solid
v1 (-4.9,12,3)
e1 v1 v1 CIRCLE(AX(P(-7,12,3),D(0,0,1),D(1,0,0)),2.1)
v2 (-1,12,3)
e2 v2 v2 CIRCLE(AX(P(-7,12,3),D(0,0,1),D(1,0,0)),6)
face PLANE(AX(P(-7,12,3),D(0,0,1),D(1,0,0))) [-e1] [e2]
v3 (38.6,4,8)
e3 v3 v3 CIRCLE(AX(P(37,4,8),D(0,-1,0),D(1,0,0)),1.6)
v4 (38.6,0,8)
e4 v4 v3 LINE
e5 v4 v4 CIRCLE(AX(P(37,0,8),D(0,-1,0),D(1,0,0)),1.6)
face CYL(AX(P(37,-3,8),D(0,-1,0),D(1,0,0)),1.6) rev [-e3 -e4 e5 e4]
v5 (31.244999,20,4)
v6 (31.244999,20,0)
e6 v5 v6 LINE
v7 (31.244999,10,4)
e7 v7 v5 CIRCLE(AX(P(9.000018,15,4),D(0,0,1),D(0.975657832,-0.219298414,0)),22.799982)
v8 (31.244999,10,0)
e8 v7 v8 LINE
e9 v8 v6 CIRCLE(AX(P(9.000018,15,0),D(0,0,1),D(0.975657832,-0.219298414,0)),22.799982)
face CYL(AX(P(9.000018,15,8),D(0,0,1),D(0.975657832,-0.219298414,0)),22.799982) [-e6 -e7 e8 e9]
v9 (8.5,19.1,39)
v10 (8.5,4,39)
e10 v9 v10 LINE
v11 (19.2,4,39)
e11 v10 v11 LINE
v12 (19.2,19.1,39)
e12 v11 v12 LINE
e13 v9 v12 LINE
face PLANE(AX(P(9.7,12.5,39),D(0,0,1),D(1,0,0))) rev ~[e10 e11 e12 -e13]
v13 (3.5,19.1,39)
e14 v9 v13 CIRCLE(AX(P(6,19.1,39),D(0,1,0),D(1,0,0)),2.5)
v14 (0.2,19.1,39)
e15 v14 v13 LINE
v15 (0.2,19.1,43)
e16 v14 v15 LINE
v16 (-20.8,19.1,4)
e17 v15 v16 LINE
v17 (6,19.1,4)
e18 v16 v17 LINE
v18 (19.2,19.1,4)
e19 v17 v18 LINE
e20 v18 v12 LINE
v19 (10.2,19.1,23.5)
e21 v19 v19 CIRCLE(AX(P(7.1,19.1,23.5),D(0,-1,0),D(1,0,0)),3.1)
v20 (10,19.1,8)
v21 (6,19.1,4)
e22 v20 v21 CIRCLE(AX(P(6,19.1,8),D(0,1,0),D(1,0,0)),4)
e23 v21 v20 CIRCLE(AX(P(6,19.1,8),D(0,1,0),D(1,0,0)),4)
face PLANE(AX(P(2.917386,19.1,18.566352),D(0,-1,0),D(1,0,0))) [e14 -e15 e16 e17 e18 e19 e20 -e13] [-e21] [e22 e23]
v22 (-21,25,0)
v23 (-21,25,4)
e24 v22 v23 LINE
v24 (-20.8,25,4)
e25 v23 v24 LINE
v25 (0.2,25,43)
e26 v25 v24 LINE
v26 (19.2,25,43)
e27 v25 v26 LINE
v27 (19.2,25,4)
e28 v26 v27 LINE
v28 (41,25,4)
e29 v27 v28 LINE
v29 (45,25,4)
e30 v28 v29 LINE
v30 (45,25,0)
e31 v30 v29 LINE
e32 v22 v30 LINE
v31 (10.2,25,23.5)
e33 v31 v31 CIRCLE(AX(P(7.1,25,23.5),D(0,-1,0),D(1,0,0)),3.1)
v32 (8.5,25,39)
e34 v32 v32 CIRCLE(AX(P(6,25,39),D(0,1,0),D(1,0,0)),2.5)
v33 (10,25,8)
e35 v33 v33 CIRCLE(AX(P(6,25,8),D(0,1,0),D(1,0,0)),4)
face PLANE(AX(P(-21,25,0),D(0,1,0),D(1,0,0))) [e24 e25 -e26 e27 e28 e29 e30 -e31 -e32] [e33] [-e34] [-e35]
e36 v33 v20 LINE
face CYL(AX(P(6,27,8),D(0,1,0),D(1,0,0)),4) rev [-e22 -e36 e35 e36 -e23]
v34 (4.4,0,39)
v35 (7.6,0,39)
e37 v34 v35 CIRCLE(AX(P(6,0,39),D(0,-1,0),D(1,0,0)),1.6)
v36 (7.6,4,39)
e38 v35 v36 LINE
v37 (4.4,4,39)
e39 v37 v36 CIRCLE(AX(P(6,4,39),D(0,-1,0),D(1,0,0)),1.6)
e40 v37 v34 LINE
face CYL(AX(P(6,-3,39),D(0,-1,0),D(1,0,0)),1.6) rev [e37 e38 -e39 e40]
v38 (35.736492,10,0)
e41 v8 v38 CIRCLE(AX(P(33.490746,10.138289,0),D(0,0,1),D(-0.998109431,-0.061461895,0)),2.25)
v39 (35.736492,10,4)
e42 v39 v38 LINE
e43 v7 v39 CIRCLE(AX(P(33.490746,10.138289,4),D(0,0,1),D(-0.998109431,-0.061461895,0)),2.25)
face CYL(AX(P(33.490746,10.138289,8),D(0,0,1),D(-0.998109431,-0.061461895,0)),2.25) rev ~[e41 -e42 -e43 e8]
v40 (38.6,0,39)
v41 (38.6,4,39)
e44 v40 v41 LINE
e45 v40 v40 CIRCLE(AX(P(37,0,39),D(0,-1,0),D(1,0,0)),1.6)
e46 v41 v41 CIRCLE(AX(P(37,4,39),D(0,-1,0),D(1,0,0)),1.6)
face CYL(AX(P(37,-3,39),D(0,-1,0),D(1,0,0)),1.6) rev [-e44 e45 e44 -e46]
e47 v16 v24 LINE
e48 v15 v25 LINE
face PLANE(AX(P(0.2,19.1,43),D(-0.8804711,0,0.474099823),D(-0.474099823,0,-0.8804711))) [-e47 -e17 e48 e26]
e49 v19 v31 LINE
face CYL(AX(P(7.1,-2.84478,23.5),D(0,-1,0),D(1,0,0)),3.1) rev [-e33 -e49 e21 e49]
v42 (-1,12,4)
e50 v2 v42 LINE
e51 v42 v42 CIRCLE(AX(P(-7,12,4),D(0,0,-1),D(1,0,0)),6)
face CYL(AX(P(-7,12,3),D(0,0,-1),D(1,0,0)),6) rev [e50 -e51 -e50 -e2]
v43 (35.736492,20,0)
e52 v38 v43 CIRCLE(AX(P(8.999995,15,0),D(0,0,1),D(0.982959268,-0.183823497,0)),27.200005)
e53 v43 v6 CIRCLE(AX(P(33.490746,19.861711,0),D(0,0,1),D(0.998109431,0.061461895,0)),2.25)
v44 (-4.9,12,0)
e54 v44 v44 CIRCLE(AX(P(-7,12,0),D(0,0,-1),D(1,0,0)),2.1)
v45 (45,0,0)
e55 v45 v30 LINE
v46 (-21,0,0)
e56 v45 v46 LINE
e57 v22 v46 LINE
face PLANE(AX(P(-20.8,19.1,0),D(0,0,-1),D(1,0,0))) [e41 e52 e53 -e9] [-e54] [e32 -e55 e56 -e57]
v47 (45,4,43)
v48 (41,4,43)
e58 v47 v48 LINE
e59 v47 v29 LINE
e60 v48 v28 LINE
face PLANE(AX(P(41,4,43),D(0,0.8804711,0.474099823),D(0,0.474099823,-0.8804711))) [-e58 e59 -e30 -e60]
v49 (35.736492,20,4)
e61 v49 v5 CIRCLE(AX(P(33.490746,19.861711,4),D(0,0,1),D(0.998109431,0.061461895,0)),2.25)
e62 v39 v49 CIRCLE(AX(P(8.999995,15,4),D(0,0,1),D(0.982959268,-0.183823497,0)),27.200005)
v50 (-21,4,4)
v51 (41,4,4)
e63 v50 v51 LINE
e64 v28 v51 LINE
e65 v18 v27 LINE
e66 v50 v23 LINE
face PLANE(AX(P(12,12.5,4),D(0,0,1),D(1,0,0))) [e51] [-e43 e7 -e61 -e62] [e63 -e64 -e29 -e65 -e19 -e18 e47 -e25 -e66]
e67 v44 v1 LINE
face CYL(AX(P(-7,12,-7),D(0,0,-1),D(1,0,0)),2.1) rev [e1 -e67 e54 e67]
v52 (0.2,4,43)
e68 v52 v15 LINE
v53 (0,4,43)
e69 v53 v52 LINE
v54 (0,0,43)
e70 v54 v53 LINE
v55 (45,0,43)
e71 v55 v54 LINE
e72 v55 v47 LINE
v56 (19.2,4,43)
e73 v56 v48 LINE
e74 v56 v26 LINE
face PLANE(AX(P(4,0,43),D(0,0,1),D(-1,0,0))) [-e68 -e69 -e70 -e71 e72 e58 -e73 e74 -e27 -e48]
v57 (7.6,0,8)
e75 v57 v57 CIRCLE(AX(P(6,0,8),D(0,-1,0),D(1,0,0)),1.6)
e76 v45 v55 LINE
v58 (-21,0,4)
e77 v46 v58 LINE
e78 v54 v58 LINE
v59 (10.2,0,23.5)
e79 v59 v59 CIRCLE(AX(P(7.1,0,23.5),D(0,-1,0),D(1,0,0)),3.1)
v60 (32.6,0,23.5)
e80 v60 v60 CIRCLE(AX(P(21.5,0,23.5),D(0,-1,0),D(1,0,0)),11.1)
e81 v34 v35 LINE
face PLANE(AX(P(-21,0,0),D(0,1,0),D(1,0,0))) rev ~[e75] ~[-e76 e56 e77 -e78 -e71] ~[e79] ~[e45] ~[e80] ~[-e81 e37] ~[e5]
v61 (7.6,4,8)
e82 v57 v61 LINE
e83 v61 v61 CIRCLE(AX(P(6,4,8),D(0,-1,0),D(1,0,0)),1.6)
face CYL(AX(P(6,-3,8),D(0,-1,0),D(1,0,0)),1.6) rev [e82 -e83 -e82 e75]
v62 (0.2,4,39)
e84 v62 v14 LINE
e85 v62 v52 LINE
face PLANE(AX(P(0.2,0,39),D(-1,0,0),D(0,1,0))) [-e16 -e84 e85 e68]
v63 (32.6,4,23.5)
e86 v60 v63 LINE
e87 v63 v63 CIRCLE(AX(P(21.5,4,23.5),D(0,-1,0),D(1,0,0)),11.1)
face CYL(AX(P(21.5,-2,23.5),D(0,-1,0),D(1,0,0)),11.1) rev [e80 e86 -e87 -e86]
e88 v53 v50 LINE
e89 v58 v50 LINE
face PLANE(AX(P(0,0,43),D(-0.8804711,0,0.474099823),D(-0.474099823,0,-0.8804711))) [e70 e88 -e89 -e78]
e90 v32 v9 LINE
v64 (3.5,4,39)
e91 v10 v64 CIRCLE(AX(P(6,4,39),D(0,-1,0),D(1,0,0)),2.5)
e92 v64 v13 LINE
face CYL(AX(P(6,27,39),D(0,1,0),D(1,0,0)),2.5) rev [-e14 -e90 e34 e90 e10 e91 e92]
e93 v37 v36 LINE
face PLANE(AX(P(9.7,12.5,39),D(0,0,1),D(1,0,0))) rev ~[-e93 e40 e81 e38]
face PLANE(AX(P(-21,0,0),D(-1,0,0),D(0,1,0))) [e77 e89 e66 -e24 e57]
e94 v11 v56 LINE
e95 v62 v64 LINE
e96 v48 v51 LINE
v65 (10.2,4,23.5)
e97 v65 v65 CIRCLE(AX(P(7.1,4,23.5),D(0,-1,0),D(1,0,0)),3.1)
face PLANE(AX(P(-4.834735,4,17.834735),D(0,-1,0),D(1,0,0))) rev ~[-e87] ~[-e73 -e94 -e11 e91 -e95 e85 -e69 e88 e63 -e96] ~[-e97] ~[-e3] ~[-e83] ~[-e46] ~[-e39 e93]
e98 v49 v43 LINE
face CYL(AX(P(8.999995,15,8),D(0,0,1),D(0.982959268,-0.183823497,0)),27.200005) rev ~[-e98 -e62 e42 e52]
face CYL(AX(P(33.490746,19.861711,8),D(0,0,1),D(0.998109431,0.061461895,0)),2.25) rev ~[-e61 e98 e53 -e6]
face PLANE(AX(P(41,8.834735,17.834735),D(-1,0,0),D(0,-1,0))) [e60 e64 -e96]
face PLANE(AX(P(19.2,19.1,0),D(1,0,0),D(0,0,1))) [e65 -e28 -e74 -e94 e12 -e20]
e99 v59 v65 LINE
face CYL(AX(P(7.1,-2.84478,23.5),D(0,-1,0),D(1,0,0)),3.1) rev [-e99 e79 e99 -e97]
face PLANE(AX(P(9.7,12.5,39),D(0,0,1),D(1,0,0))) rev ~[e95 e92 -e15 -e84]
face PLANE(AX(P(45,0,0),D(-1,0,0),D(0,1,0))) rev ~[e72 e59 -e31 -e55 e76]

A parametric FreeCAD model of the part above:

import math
import FreeCAD as App
import Part
import Sketcher


def add_polygon(sketch, points):
    """Adds a closed chain of lines whose ends are joined by coincident constraints."""
    first, n = sketch.GeometryCount, len(points)
    for a, b in zip(points, points[1:] + points[:1]):
        sketch.addGeometry(Part.LineSegment(App.Vector(*a, 0), App.Vector(*b, 0)), False)
    for i in range(n):
        sketch.addConstraint(Sketcher.Constraint("Coincident", first + i, 2, first + (i + 1) % n, 1))

doc = App.newDocument("Part")
body = doc.addObject("PartDesign::Body", "Body")

# Sketch on XZ plane
sketch1 = body.newObject("Sketcher::SketchObject", "Sketch")
sketch1.AttachmentSupport = (doc.getObject("XZ_Plane"), [""])
sketch1.MapMode = "FlatFace"
sketch1.AttachmentOffset = App.Placement(App.Vector(0, 0, 2.84478), App.Rotation())
sketch1.addGeometry(Part.Circle(App.Vector(7.1, 23.5, 0), App.Vector(0, 0, 1), 3.1), False)
sketch1.addConstraint([
    Sketcher.Constraint("Diameter", 0, 6.2),
    Sketcher.Constraint("DistanceX", -1, 1, 0, 3, 7.1),
    Sketcher.Constraint("DistanceY", -1, 1, 0, 3, 23.5),
])
pad1 = body.newObject("PartDesign::Pad", "Pad")
pad1.Profile = sketch1
pad1.Length = 32.5
pad1.Reversed = True
body2 = doc.addObject("PartDesign::Body", "Body001")

# Sketch on XY plane
sketch2 = body2.newObject("Sketcher::SketchObject", "Sketch001")
sketch2.AttachmentSupport = (doc.getObject("XY_Plane001"), [""])
sketch2.MapMode = "FlatFace"
sketch2.addGeometry([
    Part.ArcOfCircle(Part.Circle(App.Vector(9, 15, 0), App.Vector(0, 0, 1), 27.2), math.radians(-11), math.radians(11)),
    Part.ArcOfCircle(Part.Circle(App.Vector(33.5, 19.9, 0), App.Vector(0, 0, 1), 2.3), math.radians(4), math.radians(176)),
    Part.ArcOfCircle(Part.Circle(App.Vector(9, 15, 0), App.Vector(0, 0, 1), 22.8), math.radians(-13), math.radians(13)),
    Part.ArcOfCircle(Part.Circle(App.Vector(33.5, 10.1, 0), App.Vector(0, 0, 1), 2.3), math.radians(-176), math.radians(-4)),
], False)
sketch2.addConstraint([
    Sketcher.Constraint("Coincident", 0, 2, 1, 1),
    Sketcher.Constraint("Coincident", 1, 2, 2, 2),
    Sketcher.Constraint("Coincident", 2, 1, 3, 1),
    Sketcher.Constraint("Coincident", 3, 2, 0, 1),
    Sketcher.Constraint("Equal", 1, 3),
    Sketcher.Constraint("Horizontal", 0, 3, 2, 3),
    Sketcher.Constraint("Horizontal", 0, 2, 1, 2),
    Sketcher.Constraint("Horizontal", 2, 1, 3, 2),
    Sketcher.Constraint("Vertical", 1, 3, 3, 3),
    Sketcher.Constraint("Radius", 1, 2.25),
    Sketcher.Constraint("DistanceY", -1, 1, 0, 3, 15.0),
    Sketcher.Constraint("DistanceY", -1, 1, 0, 2, 20.0),
    Sketcher.Constraint("DistanceX", -1, 1, 1, 2, 31.244999),
    Sketcher.Constraint("Radius", 0, 27.200005),
    Sketcher.Constraint("Radius", 2, 22.799982),
    Sketcher.Constraint("DistanceY", -1, 1, 1, 3, 19.861711),
])
pad2 = body2.newObject("PartDesign::Pad", "Pad001")
pad2.Profile = sketch2
pad2.Length = 10
pad2.Reversed = True
body3 = doc.addObject("PartDesign::Body", "Body002")
doc.recompute()

body2.Placement = App.Placement(App.Vector(0, 0, 8), App.Rotation(App.Vector(0, 0, 1), 0))
boolean = body3.newObject("PartDesign::Boolean", "Boolean")
boolean.Type = "Fuse"
boolean.addObjects([body2])
body4 = doc.addObject("PartDesign::Body", "Body003")

# Sketch on XZ plane
sketch3 = body4.newObject("Sketcher::SketchObject", "Sketch002")
sketch3.AttachmentSupport = (doc.getObject("XZ_Plane003"), [""])
sketch3.MapMode = "FlatFace"
sketch3.AttachmentOffset = App.Placement(App.Vector(0, 0, -27), App.Rotation())
sketch3.addGeometry(Part.Circle(App.Vector(6, 39, 0), App.Vector(0, 0, 1), 2.5), False)
sketch3.addConstraint([
    Sketcher.Constraint("Diameter", 0, 5.0),
    Sketcher.Constraint("DistanceX", -1, 1, 0, 3, 6.0),
    Sketcher.Constraint("DistanceY", -1, 1, 0, 3, 39.0),
])
pad3 = body4.newObject("PartDesign::Pad", "Pad002")
pad3.Profile = sketch3
pad3.Length = 23
body5 = doc.addObject("PartDesign::Body", "Body004")

# Sketch on XZ plane
sketch4 = body5.newObject("Sketcher::SketchObject", "Sketch003")
sketch4.AttachmentSupport = (doc.getObject("XZ_Plane004"), [""])
sketch4.MapMode = "FlatFace"
sketch4.AttachmentOffset = App.Placement(App.Vector(0, 0, -27), App.Rotation())
sketch4.addGeometry(Part.Circle(App.Vector(6, 8, 0), App.Vector(0, 0, 1), 4), False)
sketch4.addConstraint([
    Sketcher.Constraint("Diameter", 0, 8.0),
    Sketcher.Constraint("DistanceX", -1, 1, 0, 3, 6.0),
    Sketcher.Constraint("DistanceY", -1, 1, 0, 3, 8.0),
])
pad4 = body5.newObject("PartDesign::Pad", "Pad003")
pad4.Profile = sketch4
pad4.Length = 10
body6 = doc.addObject("PartDesign::Body", "Body005")

# Sketch on YZ plane
sketch5 = body6.newObject("Sketcher::SketchObject", "Sketch004")
sketch5.AttachmentSupport = (doc.getObject("YZ_Plane005"), [""])
sketch5.MapMode = "FlatFace"
add_polygon(sketch5, [(0, 43), (0, 0), (25, 0), (25, 4), (4, 43)])  # lines 0-4
sketch5.addConstraint([
    Sketcher.Constraint("Vertical", 0),
    Sketcher.Constraint("Horizontal", 1),
    Sketcher.Constraint("Vertical", 2),
    Sketcher.Constraint("Horizontal", 4),
    Sketcher.Constraint("Coincident", 0, 2, -1, 1),
    Sketcher.Constraint("Equal", 4, 2),
    Sketcher.Constraint("DistanceX", 1, 1, 1, 2, 25.0),
    Sketcher.Constraint("DistanceX", 4, 2, 4, 1, 4.0),
    Sketcher.Constraint("DistanceY", 0, 2, 0, 1, 43.0),
])
pad5 = body6.newObject("PartDesign::Pad", "Pad004")
pad5.Profile = sketch5
pad5.Length = 4
body7 = doc.addObject("PartDesign::Body", "Body006")
doc.recompute()

body6.Placement = App.Placement(App.Vector(4, 0, 0), App.Rotation(App.Vector(0, 0, 1), 90))
boolean2 = body7.newObject("PartDesign::Boolean", "Boolean001")
boolean2.Type = "Fuse"
boolean2.addObjects([body6])
body8 = doc.addObject("PartDesign::Body", "Body007")

# Sketch on XZ plane
sketch6 = body8.newObject("Sketcher::SketchObject", "Sketch005")
sketch6.AttachmentSupport = (doc.getObject("XZ_Plane007"), [""])
sketch6.MapMode = "FlatFace"
sketch6.AttachmentOffset = App.Placement(App.Vector(0, 0, 2), App.Rotation())
sketch6.addGeometry(Part.Circle(App.Vector(22, 24, 0), App.Vector(0, 0, 1), 11), False)
sketch6.addConstraint([
    Sketcher.Constraint("Diameter", 0, 22.2),
    Sketcher.Constraint("DistanceX", -1, 1, 0, 3, 21.5),
    Sketcher.Constraint("DistanceY", -1, 1, 0, 3, 23.5),
])
pad6 = body8.newObject("PartDesign::Pad", "Pad005")
pad6.Profile = sketch6
pad6.Length = 10
pad6.Reversed = True
body9 = doc.addObject("PartDesign::Body", "Body008")

# Sketch on XZ plane
sketch7 = body9.newObject("Sketcher::SketchObject", "Sketch006")
sketch7.AttachmentSupport = (doc.getObject("XZ_Plane008"), [""])
sketch7.MapMode = "FlatFace"
sketch7.AttachmentOffset = App.Placement(App.Vector(0, 0, 3), App.Rotation())
sketch7.addGeometry(Part.Circle(App.Vector(37, 8, 0), App.Vector(0, 0, 1), 1.6), False)
sketch7.addConstraint([
    Sketcher.Constraint("Diameter", 0, 3.2),
    Sketcher.Constraint("DistanceX", -1, 1, 0, 3, 37.0),
    Sketcher.Constraint("DistanceY", -1, 1, 0, 3, 8.0),
])
pad7 = body9.newObject("PartDesign::Pad", "Pad006")
pad7.Profile = sketch7
pad7.Length = 10
pad7.Reversed = True
body10 = doc.addObject("PartDesign::Body", "Body009")

# Sketch on XZ plane
sketch8 = body10.newObject("Sketcher::SketchObject", "Sketch007")
sketch8.AttachmentSupport = (doc.getObject("XZ_Plane009"), [""])
sketch8.MapMode = "FlatFace"
sketch8.AttachmentOffset = App.Placement(App.Vector(0, 0, 3), App.Rotation())
sketch8.addGeometry(Part.Circle(App.Vector(6, 8, 0), App.Vector(0, 0, 1), 1.6), False)
sketch8.addConstraint([
    Sketcher.Constraint("Diameter", 0, 3.2),
    Sketcher.Constraint("DistanceX", -1, 1, 0, 3, 6.0),
    Sketcher.Constraint("DistanceY", -1, 1, 0, 3, 8.0),
])
pad8 = body10.newObject("PartDesign::Pad", "Pad007")
pad8.Profile = sketch8
pad8.Length = 10
pad8.Reversed = True
body11 = doc.addObject("PartDesign::Body", "Body010")

# Sketch on XZ plane
sketch9 = body11.newObject("Sketcher::SketchObject", "Sketch008")
sketch9.AttachmentSupport = (doc.getObject("XZ_Plane010"), [""])
sketch9.MapMode = "FlatFace"
sketch9.AttachmentOffset = App.Placement(App.Vector(0, 0, 3), App.Rotation())
sketch9.addGeometry(Part.Circle(App.Vector(6, 39, 0), App.Vector(0, 0, 1), 1.6), False)
sketch9.addConstraint([
    Sketcher.Constraint("Diameter", 0, 3.2),
    Sketcher.Constraint("DistanceX", -1, 1, 0, 3, 6.0),
    Sketcher.Constraint("DistanceY", -1, 1, 0, 3, 39.0),
])
pad9 = body11.newObject("PartDesign::Pad", "Pad008")
pad9.Profile = sketch9
pad9.Length = 10
pad9.Reversed = True
body12 = doc.addObject("PartDesign::Body", "Body011")

# Sketch on XZ plane
sketch10 = body12.newObject("Sketcher::SketchObject", "Sketch009")
sketch10.AttachmentSupport = (doc.getObject("XZ_Plane011"), [""])
sketch10.MapMode = "FlatFace"
sketch10.AttachmentOffset = App.Placement(App.Vector(0, 0, 3), App.Rotation())
sketch10.addGeometry(Part.Circle(App.Vector(37, 39, 0), App.Vector(0, 0, 1), 1.6), False)
sketch10.addConstraint([
    Sketcher.Constraint("Diameter", 0, 3.2),
    Sketcher.Constraint("DistanceX", -1, 1, 0, 3, 37.0),
    Sketcher.Constraint("DistanceY", -1, 1, 0, 3, 39.0),
])
pad10 = body12.newObject("PartDesign::Pad", "Pad009")
pad10.Profile = sketch10
pad10.Length = 10
pad10.Reversed = True
body13 = doc.addObject("PartDesign::Body", "Body012")

# Sketch on XY plane
sketch11 = body13.newObject("Sketcher::SketchObject", "Sketch010")
sketch11.AttachmentSupport = (doc.getObject("XY_Plane012"), [""])
sketch11.MapMode = "FlatFace"
add_polygon(sketch11, [(0, 4), (0, 0), (44, 0), (44, 4)])  # lines 0-3
sketch11.addConstraint([
    Sketcher.Constraint("Vertical", 0),
    Sketcher.Constraint("Horizontal", 1),
    Sketcher.Constraint("Vertical", 2),
    Sketcher.Constraint("Horizontal", 3),
    Sketcher.Constraint("Coincident", 0, 2, -1, 1),
    Sketcher.Constraint("DistanceX", 1, 1, 1, 2, 44.0),
    Sketcher.Constraint("DistanceY", 0, 2, 0, 1, 4.0),
])
pad11 = body13.newObject("PartDesign::Pad", "Pad010")
pad11.Profile = sketch11
pad11.Length = 43
doc.recompute()

boolean3 = body13.newObject("PartDesign::Boolean", "Boolean002")
boolean3.Type = "Cut"
boolean3.addObjects([body12])
doc.recompute()

boolean4 = body13.newObject("PartDesign::Boolean", "Boolean003")
boolean4.Type = "Cut"
boolean4.addObjects([body11])
doc.recompute()

boolean5 = body13.newObject("PartDesign::Boolean", "Boolean004")
boolean5.Type = "Cut"
boolean5.addObjects([body10])
doc.recompute()

boolean6 = body13.newObject("PartDesign::Boolean", "Boolean005")
boolean6.Type = "Cut"
boolean6.addObjects([body9])
doc.recompute()

boolean7 = body13.newObject("PartDesign::Boolean", "Boolean006")
boolean7.Type = "Cut"
boolean7.addObjects([body8])
body14 = doc.addObject("PartDesign::Body", "Body013")

# Sketch on YZ plane
sketch12 = body14.newObject("Sketcher::SketchObject", "Sketch011")
sketch12.AttachmentSupport = (doc.getObject("YZ_Plane013"), [""])
sketch12.MapMode = "FlatFace"
add_polygon(sketch12, [(0, 43), (0, 0), (25, 0), (25, 4), (4, 43)])  # lines 0-4
sketch12.addConstraint([
    Sketcher.Constraint("Vertical", 0),
    Sketcher.Constraint("Horizontal", 1),
    Sketcher.Constraint("Vertical", 2),
    Sketcher.Constraint("Horizontal", 4),
    Sketcher.Constraint("Coincident", 0, 2, -1, 1),
    Sketcher.Constraint("Equal", 4, 2),
    Sketcher.Constraint("DistanceX", 1, 1, 1, 2, 25.0),
    Sketcher.Constraint("DistanceX", 4, 2, 4, 1, 4.0),
    Sketcher.Constraint("DistanceY", 0, 2, 0, 1, 43.0),
])
pad12 = body14.newObject("PartDesign::Pad", "Pad011")
pad12.Profile = sketch12
pad12.Length = 4
body15 = doc.addObject("PartDesign::Body", "Body014")
doc.recompute()

body14.Placement = App.Placement(App.Vector(41, 0, 0), App.Rotation(App.Vector(0, 0, 1), 0))
boolean8 = body15.newObject("PartDesign::Boolean", "Boolean007")
boolean8.Type = "Fuse"
boolean8.addObjects([body14])
body16 = doc.addObject("PartDesign::Body", "Body015")

# Sketch on YZ plane
sketch13 = body16.newObject("Sketcher::SketchObject", "Sketch012")
sketch13.AttachmentSupport = (doc.getObject("YZ_Plane015"), [""])
sketch13.MapMode = "FlatFace"
add_polygon(sketch13, [(0, 43), (0, 0), (40, 0), (40, 4), (19, 43)])  # lines 0-4
sketch13.addConstraint([
    Sketcher.Constraint("Vertical", 0),
    Sketcher.Constraint("Horizontal", 1),
    Sketcher.Constraint("Vertical", 2),
    Sketcher.Constraint("Horizontal", 4),
    Sketcher.Constraint("Coincident", 0, 2, -1, 1),
    Sketcher.Constraint("DistanceX", 1, 1, 1, 2, 40.0),
    Sketcher.Constraint("DistanceX", 4, 2, 4, 1, 19.0),
    Sketcher.Constraint("DistanceY", 0, 2, 0, 1, 43.0),
    Sketcher.Constraint("DistanceY", 2, 1, 2, 2, 4.0),
])
pad13 = body16.newObject("PartDesign::Pad", "Pad012")
pad13.Profile = sketch13
pad13.Length = 5.9
body17 = doc.addObject("PartDesign::Body", "Body016")
doc.recompute()

body16.Placement = App.Placement(App.Vector(19.2, 19.1, 0), App.Rotation(App.Vector(0, 0, 1), 90))
boolean9 = body17.newObject("PartDesign::Boolean", "Boolean008")
boolean9.Type = "Fuse"
boolean9.addObjects([body16])
body18 = doc.addObject("PartDesign::Body", "Body017")

# Sketch on XY plane
sketch14 = body18.newObject("Sketcher::SketchObject", "Sketch013")
sketch14.AttachmentSupport = (doc.getObject("XY_Plane017"), [""])
sketch14.MapMode = "FlatFace"
sketch14.AttachmentOffset = App.Placement(App.Vector(0, 0, 10), App.Rotation())
sketch14.addGeometry(Part.Circle(App.Vector(0, 0, 0), App.Vector(0, 0, 1), 6), False)
sketch14.addConstraint([
    Sketcher.Constraint("Coincident", 0, 3, -1, 1),
    Sketcher.Constraint("Diameter", 0, 12.0),
])
pad14 = body18.newObject("PartDesign::Pad", "Pad013")
pad14.Profile = sketch14
pad14.Length = 6
body19 = doc.addObject("PartDesign::Body", "Body018")

# Sketch on XY plane
sketch15 = body19.newObject("Sketcher::SketchObject", "Sketch014")
sketch15.AttachmentSupport = (doc.getObject("XY_Plane018"), [""])
sketch15.MapMode = "FlatFace"
sketch15.addGeometry(Part.Circle(App.Vector(0, 0, 0), App.Vector(0, 0, 1), 2.1), False)
sketch15.addConstraint([
    Sketcher.Constraint("Coincident", 0, 3, -1, 1),
    Sketcher.Constraint("Diameter", 0, 4.2),
])
pad15 = body19.newObject("PartDesign::Pad", "Pad014")
pad15.Profile = sketch15
pad15.Length = 10
doc.recompute()

boolean10 = body19.newObject("PartDesign::Boolean", "Boolean009")
boolean10.Type = "Fuse"
boolean10.addObjects([body18])
body20 = doc.addObject("PartDesign::Body", "Body019")
doc.recompute()

body19.Placement = App.Placement(App.Vector(-7, 12, -7), App.Rotation(App.Vector(0, 0, 1), 0))
boolean11 = body20.newObject("PartDesign::Boolean", "Boolean010")
boolean11.Type = "Fuse"
boolean11.addObjects([body19])
body21 = doc.addObject("PartDesign::Body", "Body020")

# Sketch on XY plane
sketch16 = body21.newObject("Sketcher::SketchObject", "Sketch015")
sketch16.AttachmentSupport = (doc.getObject("XY_Plane020"), [""])
sketch16.MapMode = "FlatFace"
add_polygon(sketch16, [(-21, 25), (-21, 0), (45, 0), (45, 25)])  # lines 0-3
sketch16.addConstraint([
    Sketcher.Constraint("Vertical", 0),
    Sketcher.Constraint("Horizontal", 1),
    Sketcher.Constraint("Vertical", 2),
    Sketcher.Constraint("Horizontal", 3),
    Sketcher.Constraint("PointOnObject", 0, 2, -1),
    Sketcher.Constraint("DistanceX", 1, 1, 1, 2, 66.0),
    Sketcher.Constraint("DistanceY", 0, 2, 0, 1, 25.0),
    Sketcher.Constraint("DistanceX", 0, 2, -1, 1, 21.0),
])
pad16 = body21.newObject("PartDesign::Pad", "Pad015")
pad16.Profile = sketch16
pad16.Length = 4
doc.recompute()

boolean12 = body21.newObject("PartDesign::Boolean", "Boolean011")
boolean12.Type = "Cut"
boolean12.addObjects([body20])
doc.recompute()

boolean13 = body21.newObject("PartDesign::Boolean", "Boolean012")
boolean13.Type = "Fuse"
boolean13.addObjects([body7])
doc.recompute()

boolean14 = body21.newObject("PartDesign::Boolean", "Boolean013")
boolean14.Type = "Fuse"
boolean14.addObjects([body13])
doc.recompute()

boolean15 = body21.newObject("PartDesign::Boolean", "Boolean014")
boolean15.Type = "Fuse"
boolean15.addObjects([body15])
doc.recompute()

boolean16 = body21.newObject("PartDesign::Boolean", "Boolean015")
boolean16.Type = "Fuse"
boolean16.addObjects([body17])
doc.recompute()

boolean17 = body21.newObject("PartDesign::Boolean", "Boolean016")
boolean17.Type = "Cut"
boolean17.addObjects([body5])
body22 = doc.addObject("PartDesign::Body", "Body021")

# Sketch on XY plane
sketch17 = body22.newObject("Sketcher::SketchObject", "Sketch016")
sketch17.AttachmentSupport = (doc.getObject("XY_Plane021"), [""])
sketch17.MapMode = "FlatFace"
sketch17.AttachmentOffset = App.Placement(App.Vector(0, 0, 39), App.Rotation())
add_polygon(sketch17, [(0, 25), (0, 0), (19, 0), (19, 25)])  # lines 0-3
sketch17.addConstraint([
    Sketcher.Constraint("Vertical", 0),
    Sketcher.Constraint("Horizontal", 1),
    Sketcher.Constraint("Vertical", 2),
    Sketcher.Constraint("Horizontal", 3),
    Sketcher.Constraint("PointOnObject", 0, 2, -1),
    Sketcher.Constraint("DistanceX", 1, 1, 1, 2, 19.0),
    Sketcher.Constraint("DistanceY", 0, 2, 0, 1, 25.0),
    Sketcher.Constraint("DistanceX", -1, 1, 0, 2, 0.2),
])
pad17 = body22.newObject("PartDesign::Pad", "Pad016")
pad17.Profile = sketch17
pad17.Length = 4
body23 = doc.addObject("PartDesign::Body", "Body022")

# Sketch on XZ plane
sketch18 = body23.newObject("Sketcher::SketchObject", "Sketch017")
sketch18.AttachmentSupport = (doc.getObject("XZ_Plane022"), [""])
sketch18.MapMode = "FlatFace"
sketch18.AttachmentOffset = App.Placement(App.Vector(0, 0, 2), App.Rotation())
sketch18.addGeometry(Part.Circle(App.Vector(22, 24, 0), App.Vector(0, 0, 1), 11), False)
sketch18.addConstraint([
    Sketcher.Constraint("Diameter", 0, 22.2),
    Sketcher.Constraint("DistanceX", -1, 1, 0, 3, 21.5),
    Sketcher.Constraint("DistanceY", -1, 1, 0, 3, 23.5),
])
pad18 = body23.newObject("PartDesign::Pad", "Pad017")
pad18.Profile = sketch18
pad18.Length = 10
pad18.Reversed = True
body24 = doc.addObject("PartDesign::Body", "Body023")

# Sketch on XZ plane
sketch19 = body24.newObject("Sketcher::SketchObject", "Sketch018")
sketch19.AttachmentSupport = (doc.getObject("XZ_Plane023"), [""])
sketch19.MapMode = "FlatFace"
sketch19.AttachmentOffset = App.Placement(App.Vector(0, 0, 3), App.Rotation())
sketch19.addGeometry(Part.Circle(App.Vector(37, 8, 0), App.Vector(0, 0, 1), 1.6), False)
sketch19.addConstraint([
    Sketcher.Constraint("Diameter", 0, 3.2),
    Sketcher.Constraint("DistanceX", -1, 1, 0, 3, 37.0),
    Sketcher.Constraint("DistanceY", -1, 1, 0, 3, 8.0),
])
pad19 = body24.newObject("PartDesign::Pad", "Pad018")
pad19.Profile = sketch19
pad19.Length = 10
pad19.Reversed = True
body25 = doc.addObject("PartDesign::Body", "Body024")

# Sketch on XZ plane
sketch20 = body25.newObject("Sketcher::SketchObject", "Sketch019")
sketch20.AttachmentSupport = (doc.getObject("XZ_Plane024"), [""])
sketch20.MapMode = "FlatFace"
sketch20.AttachmentOffset = App.Placement(App.Vector(0, 0, 3), App.Rotation())
sketch20.addGeometry(Part.Circle(App.Vector(6, 8, 0), App.Vector(0, 0, 1), 1.6), False)
sketch20.addConstraint([
    Sketcher.Constraint("Diameter", 0, 3.2),
    Sketcher.Constraint("DistanceX", -1, 1, 0, 3, 6.0),
    Sketcher.Constraint("DistanceY", -1, 1, 0, 3, 8.0),
])
pad20 = body25.newObject("PartDesign::Pad", "Pad019")
pad20.Profile = sketch20
pad20.Length = 10
pad20.Reversed = True
body26 = doc.addObject("PartDesign::Body", "Body025")

# Sketch on XZ plane
sketch21 = body26.newObject("Sketcher::SketchObject", "Sketch020")
sketch21.AttachmentSupport = (doc.getObject("XZ_Plane025"), [""])
sketch21.MapMode = "FlatFace"
sketch21.AttachmentOffset = App.Placement(App.Vector(0, 0, 3), App.Rotation())
sketch21.addGeometry(Part.Circle(App.Vector(6, 39, 0), App.Vector(0, 0, 1), 1.6), False)
sketch21.addConstraint([
    Sketcher.Constraint("Diameter", 0, 3.2),
    Sketcher.Constraint("DistanceX", -1, 1, 0, 3, 6.0),
    Sketcher.Constraint("DistanceY", -1, 1, 0, 3, 39.0),
])
pad21 = body26.newObject("PartDesign::Pad", "Pad020")
pad21.Profile = sketch21
pad21.Length = 10
pad21.Reversed = True
body27 = doc.addObject("PartDesign::Body", "Body026")

# Sketch on XZ plane
sketch22 = body27.newObject("Sketcher::SketchObject", "Sketch021")
sketch22.AttachmentSupport = (doc.getObject("XZ_Plane026"), [""])
sketch22.MapMode = "FlatFace"
sketch22.AttachmentOffset = App.Placement(App.Vector(0, 0, 3), App.Rotation())
sketch22.addGeometry(Part.Circle(App.Vector(37, 39, 0), App.Vector(0, 0, 1), 1.6), False)
sketch22.addConstraint([
    Sketcher.Constraint("Diameter", 0, 3.2),
    Sketcher.Constraint("DistanceX", -1, 1, 0, 3, 37.0),
    Sketcher.Constraint("DistanceY", -1, 1, 0, 3, 39.0),
])
pad22 = body27.newObject("PartDesign::Pad", "Pad021")
pad22.Profile = sketch22
pad22.Length = 10
pad22.Reversed = True
body28 = doc.addObject("PartDesign::Body", "Body027")

# Sketch on XY plane
sketch23 = body28.newObject("Sketcher::SketchObject", "Sketch022")
sketch23.AttachmentSupport = (doc.getObject("XY_Plane027"), [""])
sketch23.MapMode = "FlatFace"
add_polygon(sketch23, [(0, 4), (0, 0), (44, 0), (44, 4)])  # lines 0-3
sketch23.addConstraint([
    Sketcher.Constraint("Vertical", 0),
    Sketcher.Constraint("Horizontal", 1),
    Sketcher.Constraint("Vertical", 2),
    Sketcher.Constraint("Horizontal", 3),
    Sketcher.Constraint("Coincident", 0, 2, -1, 1),
    Sketcher.Constraint("DistanceX", 1, 1, 1, 2, 44.0),
    Sketcher.Constraint("DistanceY", 0, 2, 0, 1, 4.0),
])
pad23 = body28.newObject("PartDesign::Pad", "Pad022")
pad23.Profile = sketch23
pad23.Length = 43
doc.recompute()

boolean18 = body28.newObject("PartDesign::Boolean", "Boolean017")
boolean18.Type = "Cut"
boolean18.addObjects([body27])
doc.recompute()

boolean19 = body28.newObject("PartDesign::Boolean", "Boolean018")
boolean19.Type = "Cut"
boolean19.addObjects([body26])
doc.recompute()

boolean20 = body28.newObject("PartDesign::Boolean", "Boolean019")
boolean20.Type = "Cut"
boolean20.addObjects([body25])
doc.recompute()

boolean21 = body28.newObject("PartDesign::Boolean", "Boolean020")
boolean21.Type = "Cut"
boolean21.addObjects([body24])
doc.recompute()

boolean22 = body28.newObject("PartDesign::Boolean", "Boolean021")
boolean22.Type = "Cut"
boolean22.addObjects([body23])
doc.recompute()

boolean23 = body28.newObject("PartDesign::Boolean", "Boolean022")
boolean23.Type = "Fuse"
boolean23.addObjects([body22])
doc.recompute()

boolean24 = body28.newObject("PartDesign::Boolean", "Boolean023")
boolean24.Type = "Fuse"
boolean24.addObjects([body21])
doc.recompute()

boolean25 = body28.newObject("PartDesign::Boolean", "Boolean024")
boolean25.Type = "Cut"
boolean25.addObjects([body4])
doc.recompute()

boolean26 = body28.newObject("PartDesign::Boolean", "Boolean025")
boolean26.Type = "Cut"
boolean26.addObjects([body3])
doc.recompute()

boolean27 = body28.newObject("PartDesign::Boolean", "Boolean026")
boolean27.Type = "Cut"
boolean27.addObjects([body])

doc.recompute()
